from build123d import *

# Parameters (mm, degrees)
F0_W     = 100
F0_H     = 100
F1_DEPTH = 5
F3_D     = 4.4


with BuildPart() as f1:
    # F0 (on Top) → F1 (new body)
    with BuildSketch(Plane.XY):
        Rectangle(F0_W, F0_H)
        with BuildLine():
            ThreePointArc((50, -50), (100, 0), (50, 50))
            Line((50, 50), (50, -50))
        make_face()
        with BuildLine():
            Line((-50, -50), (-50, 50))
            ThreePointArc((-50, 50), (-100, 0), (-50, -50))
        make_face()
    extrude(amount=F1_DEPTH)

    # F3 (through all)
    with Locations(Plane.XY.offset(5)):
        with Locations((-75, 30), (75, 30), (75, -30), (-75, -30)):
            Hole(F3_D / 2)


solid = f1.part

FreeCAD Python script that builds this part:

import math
import FreeCAD as App
import Part
import Sketcher
from FreeCAD import Vector

doc = App.newDocument("Part")
body = doc.addObject("PartDesign::Body", "Body")

sketch1 = body.newObject("Sketcher::SketchObject", "Sketch")
sketch1.AttachmentSupport = (doc.getObject("XY_Plane"), [""])
sketch1.MapMode = "FlatFace"
sketch1.addGeometry([
    Part.LineSegment(Vector(-50, -50, 0), Vector(50, -50, 0)),
    Part.ArcOfCircle(Part.Circle(Vector(50, 0, 0), Vector(0, 0, 1), 50), math.radians(-90), math.radians(90)),
    Part.LineSegment(Vector(50, 50, 0), Vector(-50, 50, 0)),
    Part.ArcOfCircle(Part.Circle(Vector(-50, 0, 0), Vector(0, 0, 1), 50), math.radians(90), math.radians(270)),
], False)
sketch1.addConstraint([
    Sketcher.Constraint("Tangent", 0, 2, 1, 1),
    Sketcher.Constraint("Tangent", 1, 2, 2, 1),
    Sketcher.Constraint("Tangent", 2, 2, 3, 1),
    Sketcher.Constraint("Tangent", 3, 2, 0, 1),
    Sketcher.Constraint("Horizontal", 0),
    Sketcher.Constraint("Horizontal", 2),
    Sketcher.Constraint("Symmetric", 1, 3, 3, 3, -1, 1),
    Sketcher.Constraint("Radius", 1, 50.0),
    Sketcher.Constraint("DistanceX", 0, 1, 0, 2, 100.0),
])
pad1 = body.newObject("PartDesign::Pad", "Pad")
pad1.Profile = sketch1
pad1.Length = 5

sketch2 = body.newObject("Sketcher::SketchObject", "Sketch001")
sketch2.AttachmentSupport = (doc.getObject("XY_Plane"), [""])
sketch2.MapMode = "FlatFace"
sketch2.AttachmentOffset = App.Placement(Vector(0, 0, 5), App.Rotation())
sketch2.addGeometry([
    Part.Circle(Vector(-75, 30, 0), Vector(0, 0, 1), 2.2),
    Part.Circle(Vector(75, 30, 0), Vector(0, 0, 1), 2.2),
    Part.Circle(Vector(75, -30, 0), Vector(0, 0, 1), 2.2),
    Part.Circle(Vector(-75, -30, 0), Vector(0, 0, 1), 2.2),
], False)
sketch2.addConstraint([
    Sketcher.Constraint("Equal", 0, 1),
    Sketcher.Constraint("Equal", 1, 2),
    Sketcher.Constraint("Equal", 2, 3),
    Sketcher.Constraint("Symmetric", 0, 3, 2, 3, -1, 1),
    Sketcher.Constraint("Symmetric", 1, 3, 3, 3, -1, 1),
    Sketcher.Constraint("Symmetric", 0, 3, 1, 3, -2),
    Sketcher.Constraint("Diameter", 0, 4.4),
    Sketcher.Constraint("DistanceX", 0, 3, -1, 1, 75.0),
    Sketcher.Constraint("DistanceY", -1, 1, 0, 3, 30.0),
])
doc.recompute()
hole = body.newObject("PartDesign::Hole", "Hole")
hole.Profile = sketch2
hole.ThreadType = "None"
hole.Diameter = 4.4
hole.DepthType = "ThroughAll"

doc.recompute()
